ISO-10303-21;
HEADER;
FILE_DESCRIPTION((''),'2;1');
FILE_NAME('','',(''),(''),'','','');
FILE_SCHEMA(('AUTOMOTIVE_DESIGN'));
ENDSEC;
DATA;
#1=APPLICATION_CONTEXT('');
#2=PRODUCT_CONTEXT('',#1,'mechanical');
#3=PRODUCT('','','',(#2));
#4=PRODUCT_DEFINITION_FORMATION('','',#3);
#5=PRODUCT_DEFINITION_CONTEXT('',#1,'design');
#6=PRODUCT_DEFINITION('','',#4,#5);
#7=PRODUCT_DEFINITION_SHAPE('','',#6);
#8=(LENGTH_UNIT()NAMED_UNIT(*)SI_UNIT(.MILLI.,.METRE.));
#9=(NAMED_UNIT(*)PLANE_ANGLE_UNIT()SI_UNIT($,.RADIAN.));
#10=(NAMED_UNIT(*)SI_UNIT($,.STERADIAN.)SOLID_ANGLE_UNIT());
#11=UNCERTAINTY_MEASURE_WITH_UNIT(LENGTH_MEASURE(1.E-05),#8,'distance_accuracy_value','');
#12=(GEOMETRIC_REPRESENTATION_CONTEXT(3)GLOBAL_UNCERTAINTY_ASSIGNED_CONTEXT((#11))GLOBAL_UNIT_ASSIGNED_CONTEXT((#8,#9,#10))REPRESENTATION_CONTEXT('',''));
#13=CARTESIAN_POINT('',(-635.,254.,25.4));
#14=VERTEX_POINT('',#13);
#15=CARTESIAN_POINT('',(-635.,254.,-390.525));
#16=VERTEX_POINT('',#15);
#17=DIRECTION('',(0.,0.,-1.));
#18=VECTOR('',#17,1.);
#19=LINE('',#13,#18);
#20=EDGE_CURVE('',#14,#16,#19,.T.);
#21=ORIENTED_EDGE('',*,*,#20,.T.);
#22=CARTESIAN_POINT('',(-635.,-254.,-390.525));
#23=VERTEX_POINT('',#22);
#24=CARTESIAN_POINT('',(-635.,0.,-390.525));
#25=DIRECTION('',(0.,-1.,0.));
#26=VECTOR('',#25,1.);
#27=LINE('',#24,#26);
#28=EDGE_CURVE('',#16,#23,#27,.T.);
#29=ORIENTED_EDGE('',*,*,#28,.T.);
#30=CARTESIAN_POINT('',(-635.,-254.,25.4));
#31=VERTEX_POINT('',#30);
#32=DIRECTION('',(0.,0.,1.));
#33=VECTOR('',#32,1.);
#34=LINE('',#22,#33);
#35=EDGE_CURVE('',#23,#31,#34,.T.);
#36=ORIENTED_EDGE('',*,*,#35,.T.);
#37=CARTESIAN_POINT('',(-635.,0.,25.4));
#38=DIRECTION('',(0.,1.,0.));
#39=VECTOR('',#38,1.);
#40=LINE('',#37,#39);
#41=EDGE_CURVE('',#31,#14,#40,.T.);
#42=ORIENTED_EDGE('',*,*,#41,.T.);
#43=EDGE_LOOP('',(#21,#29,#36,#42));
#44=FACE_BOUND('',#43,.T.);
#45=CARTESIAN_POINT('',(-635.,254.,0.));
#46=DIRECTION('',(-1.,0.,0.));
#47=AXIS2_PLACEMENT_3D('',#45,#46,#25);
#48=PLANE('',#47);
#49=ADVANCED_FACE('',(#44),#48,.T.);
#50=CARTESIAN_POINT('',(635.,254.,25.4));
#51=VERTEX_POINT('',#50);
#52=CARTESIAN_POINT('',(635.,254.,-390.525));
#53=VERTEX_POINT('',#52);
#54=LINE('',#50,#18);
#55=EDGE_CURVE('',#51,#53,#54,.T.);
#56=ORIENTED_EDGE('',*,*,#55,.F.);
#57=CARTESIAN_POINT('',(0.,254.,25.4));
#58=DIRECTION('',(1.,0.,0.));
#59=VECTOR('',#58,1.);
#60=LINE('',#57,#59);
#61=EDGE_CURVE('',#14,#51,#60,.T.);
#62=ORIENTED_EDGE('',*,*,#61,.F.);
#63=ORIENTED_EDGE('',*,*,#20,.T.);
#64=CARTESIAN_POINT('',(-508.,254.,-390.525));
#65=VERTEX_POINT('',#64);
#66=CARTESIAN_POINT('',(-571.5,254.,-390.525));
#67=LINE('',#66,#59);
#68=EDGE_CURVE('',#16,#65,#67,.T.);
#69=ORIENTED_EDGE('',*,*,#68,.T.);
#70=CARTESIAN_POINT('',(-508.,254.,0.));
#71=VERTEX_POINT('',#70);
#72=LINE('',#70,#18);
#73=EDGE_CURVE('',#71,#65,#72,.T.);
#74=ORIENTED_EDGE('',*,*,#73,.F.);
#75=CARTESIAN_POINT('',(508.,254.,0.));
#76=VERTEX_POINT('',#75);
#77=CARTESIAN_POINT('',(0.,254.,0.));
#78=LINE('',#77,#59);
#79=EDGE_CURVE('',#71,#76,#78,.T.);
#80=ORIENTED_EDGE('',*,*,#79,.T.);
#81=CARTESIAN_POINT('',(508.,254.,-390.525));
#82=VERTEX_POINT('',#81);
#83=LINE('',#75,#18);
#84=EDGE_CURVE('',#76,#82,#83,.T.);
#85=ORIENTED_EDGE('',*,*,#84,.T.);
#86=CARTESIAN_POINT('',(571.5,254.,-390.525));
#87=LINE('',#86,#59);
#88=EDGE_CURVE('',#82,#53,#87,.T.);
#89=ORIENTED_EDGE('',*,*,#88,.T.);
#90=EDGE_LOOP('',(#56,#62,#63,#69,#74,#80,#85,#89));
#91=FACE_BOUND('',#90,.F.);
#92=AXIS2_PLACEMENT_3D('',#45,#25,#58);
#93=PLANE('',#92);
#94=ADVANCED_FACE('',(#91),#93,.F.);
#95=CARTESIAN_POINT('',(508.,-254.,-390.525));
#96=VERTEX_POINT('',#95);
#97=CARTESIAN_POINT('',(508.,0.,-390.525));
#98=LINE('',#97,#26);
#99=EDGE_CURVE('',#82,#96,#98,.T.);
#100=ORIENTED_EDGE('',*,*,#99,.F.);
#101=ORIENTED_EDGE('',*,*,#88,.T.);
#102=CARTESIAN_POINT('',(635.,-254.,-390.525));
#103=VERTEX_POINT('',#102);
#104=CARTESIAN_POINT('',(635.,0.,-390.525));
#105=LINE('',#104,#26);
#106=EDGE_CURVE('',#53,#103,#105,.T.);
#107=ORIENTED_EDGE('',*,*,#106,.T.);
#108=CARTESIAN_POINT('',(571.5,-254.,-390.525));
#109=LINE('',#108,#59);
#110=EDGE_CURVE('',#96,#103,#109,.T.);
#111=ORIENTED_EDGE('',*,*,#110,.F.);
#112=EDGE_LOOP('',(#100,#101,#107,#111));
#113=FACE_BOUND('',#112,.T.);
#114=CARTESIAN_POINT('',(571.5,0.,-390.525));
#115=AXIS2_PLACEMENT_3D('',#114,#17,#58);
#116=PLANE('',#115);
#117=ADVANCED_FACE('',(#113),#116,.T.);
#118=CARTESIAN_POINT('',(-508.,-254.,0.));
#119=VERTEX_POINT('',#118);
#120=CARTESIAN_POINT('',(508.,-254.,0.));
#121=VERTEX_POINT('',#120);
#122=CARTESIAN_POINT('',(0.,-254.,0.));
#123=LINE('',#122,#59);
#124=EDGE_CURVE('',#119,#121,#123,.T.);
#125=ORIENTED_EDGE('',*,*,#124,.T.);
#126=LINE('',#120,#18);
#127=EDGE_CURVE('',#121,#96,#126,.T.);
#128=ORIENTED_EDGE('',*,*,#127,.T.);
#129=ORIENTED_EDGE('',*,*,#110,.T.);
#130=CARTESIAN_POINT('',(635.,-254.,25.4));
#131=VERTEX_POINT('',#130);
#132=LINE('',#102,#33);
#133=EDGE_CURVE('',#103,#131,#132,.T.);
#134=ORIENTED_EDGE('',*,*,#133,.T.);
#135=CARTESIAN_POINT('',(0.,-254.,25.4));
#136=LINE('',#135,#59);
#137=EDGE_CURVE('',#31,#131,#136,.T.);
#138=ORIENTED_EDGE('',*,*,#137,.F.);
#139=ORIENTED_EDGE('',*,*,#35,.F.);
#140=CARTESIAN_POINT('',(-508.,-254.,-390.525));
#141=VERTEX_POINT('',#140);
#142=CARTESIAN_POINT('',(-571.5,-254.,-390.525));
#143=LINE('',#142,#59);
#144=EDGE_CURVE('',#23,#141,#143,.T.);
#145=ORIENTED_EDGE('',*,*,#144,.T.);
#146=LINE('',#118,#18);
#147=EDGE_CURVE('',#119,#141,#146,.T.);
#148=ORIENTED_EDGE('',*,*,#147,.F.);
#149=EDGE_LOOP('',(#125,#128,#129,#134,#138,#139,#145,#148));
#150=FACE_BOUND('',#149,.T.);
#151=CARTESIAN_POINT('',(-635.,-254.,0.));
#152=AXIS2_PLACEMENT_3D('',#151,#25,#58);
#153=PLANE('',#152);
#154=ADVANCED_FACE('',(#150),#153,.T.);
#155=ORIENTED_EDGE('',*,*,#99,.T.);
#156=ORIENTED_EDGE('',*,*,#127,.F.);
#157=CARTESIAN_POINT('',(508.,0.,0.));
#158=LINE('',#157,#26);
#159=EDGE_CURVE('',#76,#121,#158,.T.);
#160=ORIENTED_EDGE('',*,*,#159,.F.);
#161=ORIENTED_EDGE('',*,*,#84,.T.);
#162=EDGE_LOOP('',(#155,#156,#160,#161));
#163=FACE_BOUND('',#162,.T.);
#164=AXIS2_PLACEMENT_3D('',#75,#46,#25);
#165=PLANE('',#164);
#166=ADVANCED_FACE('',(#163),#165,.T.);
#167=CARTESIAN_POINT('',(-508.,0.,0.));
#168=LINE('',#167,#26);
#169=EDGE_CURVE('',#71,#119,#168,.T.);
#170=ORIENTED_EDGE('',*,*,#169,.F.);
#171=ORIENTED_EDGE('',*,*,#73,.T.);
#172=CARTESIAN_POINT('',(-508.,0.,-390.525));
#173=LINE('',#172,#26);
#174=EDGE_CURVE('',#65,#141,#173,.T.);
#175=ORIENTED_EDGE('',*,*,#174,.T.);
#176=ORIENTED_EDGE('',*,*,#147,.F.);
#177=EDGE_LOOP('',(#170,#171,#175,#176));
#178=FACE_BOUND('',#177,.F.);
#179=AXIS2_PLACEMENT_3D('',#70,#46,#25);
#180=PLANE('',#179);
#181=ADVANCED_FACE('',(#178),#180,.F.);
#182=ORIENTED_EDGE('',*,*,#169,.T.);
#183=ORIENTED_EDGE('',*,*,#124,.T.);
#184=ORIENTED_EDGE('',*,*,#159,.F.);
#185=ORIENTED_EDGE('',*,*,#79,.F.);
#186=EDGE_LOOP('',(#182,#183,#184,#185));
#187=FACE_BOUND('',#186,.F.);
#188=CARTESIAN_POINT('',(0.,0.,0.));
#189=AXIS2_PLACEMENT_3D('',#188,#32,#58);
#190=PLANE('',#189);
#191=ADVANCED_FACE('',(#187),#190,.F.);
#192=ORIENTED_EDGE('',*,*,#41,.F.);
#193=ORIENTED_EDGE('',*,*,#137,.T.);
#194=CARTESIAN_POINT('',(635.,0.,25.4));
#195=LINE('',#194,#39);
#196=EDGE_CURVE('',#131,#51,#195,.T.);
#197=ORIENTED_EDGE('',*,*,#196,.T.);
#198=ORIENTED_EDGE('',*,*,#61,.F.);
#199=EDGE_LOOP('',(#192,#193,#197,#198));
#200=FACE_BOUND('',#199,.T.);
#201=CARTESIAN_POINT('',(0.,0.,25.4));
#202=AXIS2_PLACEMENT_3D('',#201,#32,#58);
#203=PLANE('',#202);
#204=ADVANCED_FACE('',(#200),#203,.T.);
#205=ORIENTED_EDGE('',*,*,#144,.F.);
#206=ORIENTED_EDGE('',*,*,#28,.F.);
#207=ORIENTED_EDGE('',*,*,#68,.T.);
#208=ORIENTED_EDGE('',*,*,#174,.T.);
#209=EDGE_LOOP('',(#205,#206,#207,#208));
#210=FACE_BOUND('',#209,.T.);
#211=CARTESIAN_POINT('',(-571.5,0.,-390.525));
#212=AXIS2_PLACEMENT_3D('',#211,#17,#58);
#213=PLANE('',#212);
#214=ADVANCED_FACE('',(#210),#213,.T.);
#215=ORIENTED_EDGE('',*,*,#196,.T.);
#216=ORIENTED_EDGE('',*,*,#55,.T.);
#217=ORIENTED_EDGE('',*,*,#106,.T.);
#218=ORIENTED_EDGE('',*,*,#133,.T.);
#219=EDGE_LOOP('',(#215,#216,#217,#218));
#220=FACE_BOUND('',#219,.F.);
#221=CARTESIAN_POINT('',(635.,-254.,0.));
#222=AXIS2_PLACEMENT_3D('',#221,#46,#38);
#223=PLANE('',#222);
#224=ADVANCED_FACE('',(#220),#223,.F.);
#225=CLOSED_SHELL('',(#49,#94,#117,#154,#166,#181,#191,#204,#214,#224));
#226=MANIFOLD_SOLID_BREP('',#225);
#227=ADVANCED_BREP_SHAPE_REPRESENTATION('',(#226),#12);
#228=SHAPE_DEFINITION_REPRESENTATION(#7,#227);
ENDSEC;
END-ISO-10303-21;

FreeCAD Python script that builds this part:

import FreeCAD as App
import Part
import Sketcher
from FreeCAD import Vector
Q = App.Units.Quantity


def add_polygon(sketch, points):
    """Adds a closed chain of lines whose ends are joined by coincident constraints."""
    first, n = sketch.GeometryCount, len(points)
    for a, b in zip(points, points[1:] + points[:1]):
        sketch.addGeometry(Part.LineSegment(App.Vector(*a, 0), App.Vector(*b, 0)), False)
    for i in range(n):
        sketch.addConstraint(Sketcher.Constraint("Coincident", first + i, 2, first + (i + 1) % n, 1))

doc = App.newDocument("Part")
params = doc.addObject("Spreadsheet::Sheet", "Params")
for row, (alias, value) in enumerate([
    ("sketch1_width", "50 in"),
    ("sketch1_height", "20 in"),
    ("pad1_length", "1 in"),
    ("sketch2_width", "5 in"),
    ("sketch2_height", "20 in"),
    ("pad2_length", "15.375 in"),
], start=1):
    params.set(f"A{row}", alias)
    params.set(f"B{row}", "=" + value)
    params.setAlias(f"B{row}", alias)

body = doc.addObject("PartDesign::Body", "Body")

sketch1 = doc.addObject("Sketcher::SketchObject", "Sketch")
body.addObject(sketch1)
sketch1.AttachmentSupport = (doc.XY_Plane, [""])
sketch1.MapMode = "FlatFace"
add_polygon(sketch1, [(-635, 254), (-635, -254), (635, -254), (635, 254)])
sketch1.addConstraint([
    Sketcher.Constraint("Vertical", 0),
    Sketcher.Constraint("Horizontal", 1),
    Sketcher.Constraint("Vertical", 2),
    Sketcher.Constraint("Horizontal", 3),
    Sketcher.Constraint("Symmetric", 0, 2, 2, 2, -1, 1),
    Sketcher.Constraint("DistanceX", 1, 1, 1, 2, Q("50 in")),
    Sketcher.Constraint("DistanceY", 0, 2, 0, 1, Q("20 in")),
])
sketch1.setExpression("Constraints[9]", "Params.sketch1_width")
sketch1.setExpression("Constraints[10]", "Params.sketch1_height")
pad1 = doc.addObject("PartDesign::Pad", "Pad")
body.addObject(pad1)
pad1.Profile = sketch1
pad1.setExpression("Length", "Params.pad1_length")

sketch2 = doc.addObject("Sketcher::SketchObject", "Sketch001")
body.addObject(sketch2)
sketch2.AttachmentSupport = (doc.XY_Plane, [""])
sketch2.MapMode = "FlatFace"
add_polygon(sketch2, [(-635, -254), (-635, 254), (-508, 254), (-508, -254)])
add_polygon(sketch2, [(508, -254), (508, 254), (635, 254), (635, -254)])
sketch2.addConstraint([
    Sketcher.Constraint("Vertical", 0),
    Sketcher.Constraint("Horizontal", 1),
    Sketcher.Constraint("Vertical", 2),
    Sketcher.Constraint("Horizontal", 3),
    Sketcher.Constraint("Vertical", 4),
    Sketcher.Constraint("Horizontal", 5),
    Sketcher.Constraint("Vertical", 6),
    Sketcher.Constraint("Horizontal", 7),
    Sketcher.Constraint("Symmetric", 2, 2, 4, 2, -1, 1),
    Sketcher.Constraint("Symmetric", 0, 2, 6, 2, -1, 1),
    Sketcher.Constraint("Horizontal", 1, 2, 4, 2),
    Sketcher.Constraint("DistanceX", 1, 1, 1, 2, Q("5 in")),
    Sketcher.Constraint("DistanceY", 0, 1, 0, 2, Q("20 in")),
    Sketcher.Constraint("DistanceX", 0, 2, -1, 1, Q("25 in")),
])
sketch2.setExpression("Constraints[19]", "Params.sketch2_width")
sketch2.setExpression("Constraints[20]", "Params.sketch2_height")
pad2 = doc.addObject("PartDesign::Pad", "Pad001")
body.addObject(pad2)
pad2.Profile = sketch2
pad2.setExpression("Length", "Params.pad2_length")
pad2.Reversed = True

doc.recompute()
